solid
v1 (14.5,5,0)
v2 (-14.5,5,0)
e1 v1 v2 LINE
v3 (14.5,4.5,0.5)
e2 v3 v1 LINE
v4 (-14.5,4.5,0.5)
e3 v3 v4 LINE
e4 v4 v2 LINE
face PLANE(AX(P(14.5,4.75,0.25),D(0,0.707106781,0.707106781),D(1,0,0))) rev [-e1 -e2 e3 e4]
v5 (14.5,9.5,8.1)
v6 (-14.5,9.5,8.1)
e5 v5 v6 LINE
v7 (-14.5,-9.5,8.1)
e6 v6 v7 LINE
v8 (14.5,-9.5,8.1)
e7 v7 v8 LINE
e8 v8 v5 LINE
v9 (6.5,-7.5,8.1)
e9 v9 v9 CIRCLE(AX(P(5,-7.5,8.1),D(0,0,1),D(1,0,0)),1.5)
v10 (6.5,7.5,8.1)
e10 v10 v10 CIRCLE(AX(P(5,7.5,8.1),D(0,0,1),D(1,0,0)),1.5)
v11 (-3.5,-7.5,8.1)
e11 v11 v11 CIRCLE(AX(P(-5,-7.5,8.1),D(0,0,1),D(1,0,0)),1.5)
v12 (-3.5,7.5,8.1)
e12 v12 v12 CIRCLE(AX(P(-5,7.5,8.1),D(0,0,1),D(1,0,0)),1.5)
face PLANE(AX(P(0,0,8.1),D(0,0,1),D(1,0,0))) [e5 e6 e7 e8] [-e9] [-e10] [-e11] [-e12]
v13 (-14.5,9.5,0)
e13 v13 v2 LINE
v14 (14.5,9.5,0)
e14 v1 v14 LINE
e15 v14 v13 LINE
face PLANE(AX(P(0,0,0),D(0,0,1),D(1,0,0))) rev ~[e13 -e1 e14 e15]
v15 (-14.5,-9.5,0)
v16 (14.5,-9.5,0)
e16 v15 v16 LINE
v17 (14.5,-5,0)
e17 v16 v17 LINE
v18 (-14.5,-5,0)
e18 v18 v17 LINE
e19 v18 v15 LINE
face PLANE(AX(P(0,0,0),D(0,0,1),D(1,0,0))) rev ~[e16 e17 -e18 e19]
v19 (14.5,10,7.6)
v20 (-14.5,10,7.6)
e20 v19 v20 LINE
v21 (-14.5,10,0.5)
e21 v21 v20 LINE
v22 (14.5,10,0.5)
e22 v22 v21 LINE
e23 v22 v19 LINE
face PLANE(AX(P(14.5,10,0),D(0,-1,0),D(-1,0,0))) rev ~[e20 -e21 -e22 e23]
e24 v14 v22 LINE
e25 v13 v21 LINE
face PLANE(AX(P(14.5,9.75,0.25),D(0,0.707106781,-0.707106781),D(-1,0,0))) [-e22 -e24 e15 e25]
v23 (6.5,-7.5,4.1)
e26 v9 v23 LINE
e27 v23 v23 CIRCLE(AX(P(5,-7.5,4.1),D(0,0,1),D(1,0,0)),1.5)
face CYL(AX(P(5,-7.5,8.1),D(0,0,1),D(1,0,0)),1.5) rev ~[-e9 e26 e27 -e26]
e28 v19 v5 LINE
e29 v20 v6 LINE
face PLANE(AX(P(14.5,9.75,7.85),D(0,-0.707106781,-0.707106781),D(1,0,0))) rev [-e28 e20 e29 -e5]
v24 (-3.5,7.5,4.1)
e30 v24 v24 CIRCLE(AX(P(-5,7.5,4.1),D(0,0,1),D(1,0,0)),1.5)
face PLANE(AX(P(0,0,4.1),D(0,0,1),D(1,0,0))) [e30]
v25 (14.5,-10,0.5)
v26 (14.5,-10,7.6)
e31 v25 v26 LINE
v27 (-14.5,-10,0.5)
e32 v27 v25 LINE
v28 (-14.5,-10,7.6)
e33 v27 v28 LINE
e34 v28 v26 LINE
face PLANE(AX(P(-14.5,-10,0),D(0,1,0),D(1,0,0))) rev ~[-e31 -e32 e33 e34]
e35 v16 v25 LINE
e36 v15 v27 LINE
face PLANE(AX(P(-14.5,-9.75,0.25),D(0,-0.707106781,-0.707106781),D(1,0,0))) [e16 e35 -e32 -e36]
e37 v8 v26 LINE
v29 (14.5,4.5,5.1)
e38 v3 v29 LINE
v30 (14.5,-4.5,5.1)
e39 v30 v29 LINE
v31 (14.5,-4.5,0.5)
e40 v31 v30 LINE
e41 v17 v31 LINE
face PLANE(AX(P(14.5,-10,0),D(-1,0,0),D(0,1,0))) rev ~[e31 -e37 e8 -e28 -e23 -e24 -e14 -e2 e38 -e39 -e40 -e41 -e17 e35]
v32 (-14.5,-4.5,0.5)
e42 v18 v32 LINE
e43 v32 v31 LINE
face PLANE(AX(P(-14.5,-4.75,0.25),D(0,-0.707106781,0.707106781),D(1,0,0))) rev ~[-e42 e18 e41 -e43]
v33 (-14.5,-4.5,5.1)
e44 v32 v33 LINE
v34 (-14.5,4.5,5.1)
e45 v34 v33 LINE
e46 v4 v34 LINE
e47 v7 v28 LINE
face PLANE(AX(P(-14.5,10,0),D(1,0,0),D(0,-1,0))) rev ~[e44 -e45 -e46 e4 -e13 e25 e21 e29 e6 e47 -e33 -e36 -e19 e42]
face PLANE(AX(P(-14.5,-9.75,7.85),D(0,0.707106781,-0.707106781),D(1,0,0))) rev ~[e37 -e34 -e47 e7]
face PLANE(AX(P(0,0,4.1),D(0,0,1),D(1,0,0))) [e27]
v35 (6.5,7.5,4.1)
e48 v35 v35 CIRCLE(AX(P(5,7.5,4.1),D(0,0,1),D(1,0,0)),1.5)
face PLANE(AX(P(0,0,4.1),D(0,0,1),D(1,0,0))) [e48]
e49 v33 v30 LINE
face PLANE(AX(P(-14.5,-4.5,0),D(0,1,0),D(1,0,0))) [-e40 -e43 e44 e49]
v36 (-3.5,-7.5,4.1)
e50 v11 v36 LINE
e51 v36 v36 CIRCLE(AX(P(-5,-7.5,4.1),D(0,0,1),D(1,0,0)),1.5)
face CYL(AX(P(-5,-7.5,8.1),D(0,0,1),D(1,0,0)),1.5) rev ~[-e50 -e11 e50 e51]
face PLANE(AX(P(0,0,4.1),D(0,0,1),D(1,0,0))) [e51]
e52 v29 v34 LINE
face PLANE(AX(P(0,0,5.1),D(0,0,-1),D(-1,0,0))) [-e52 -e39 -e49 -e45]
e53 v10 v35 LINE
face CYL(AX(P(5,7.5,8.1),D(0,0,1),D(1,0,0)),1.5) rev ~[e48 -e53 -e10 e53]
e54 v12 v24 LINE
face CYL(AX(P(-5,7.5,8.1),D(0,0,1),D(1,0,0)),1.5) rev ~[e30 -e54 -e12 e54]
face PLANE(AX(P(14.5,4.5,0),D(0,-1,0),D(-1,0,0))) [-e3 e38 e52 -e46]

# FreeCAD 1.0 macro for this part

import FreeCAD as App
import Part
import Sketcher

V = App.Vector


def edges_at(feature, points):
    """Names of the edges that pass closest to the given points."""
    edges = feature.Shape.Edges
    near = lambda p: min(range(len(edges)), key=lambda i: edges[i].distToShape(Part.Vertex(*p))[0])
    return sorted({f"Edge{near(p) + 1}" for p in points})


def add_polygon(sketch, points):
    """Adds a closed chain of lines whose ends are joined by coincident constraints."""
    first, n = sketch.GeometryCount, len(points)
    for a, b in zip(points, points[1:] + points[:1]):
        sketch.addGeometry(Part.LineSegment(App.Vector(*a, 0), App.Vector(*b, 0)), False)
    for i in range(n):
        sketch.addConstraint(Sketcher.Constraint("Coincident", first + i, 2, first + (i + 1) % n, 1))

doc = App.newDocument("Part")
body = doc.addObject("PartDesign::Body", "Body")

# Sketch on XY plane
sketch1 = body.newObject("Sketcher::SketchObject", "Sketch")
sketch1.AttachmentSupport = (doc.getObject("XY_Plane"), [""])
sketch1.MapMode = "FlatFace"
add_polygon(sketch1, [(14, -10), (14, 10), (-14, 10), (-14, -10)])  # lines 0-3
sketch1.addConstraint([
    Sketcher.Constraint("Vertical", 0),
    Sketcher.Constraint("Horizontal", 1),
    Sketcher.Constraint("Vertical", 2),
    Sketcher.Constraint("Horizontal", 3),
    Sketcher.Constraint("Symmetric", 0, 2, 2, 2, -1, 1),
    Sketcher.Constraint("DistanceX", 1, 2, 1, 1, 29.0),
    Sketcher.Constraint("DistanceY", 0, 1, 0, 2, 20.0),
])
pad1 = body.newObject("PartDesign::Pad", "Pad")
pad1.Profile = sketch1
pad1.Length = 8.1

# Sketch on XY plane
sketch2 = body.newObject("Sketcher::SketchObject", "Sketch001")
sketch2.AttachmentSupport = (doc.getObject("XY_Plane"), [""])
sketch2.MapMode = "FlatFace"
sketch2.AttachmentOffset = App.Placement(V(0, 0, 8.1), App.Rotation())
sketch2.addGeometry([
    Part.Circle(V(-5, 7.5, 0), V(0, 0, 1), 1.5),
    Part.Circle(V(5, 7.5, 0), V(0, 0, 1), 1.5),
    Part.Circle(V(5, -7.5, 0), V(0, 0, 1), 1.5),
    Part.Circle(V(-5, -7.5, 0), V(0, 0, 1), 1.5),
], False)
sketch2.addConstraint([
    Sketcher.Constraint("Equal", 0, 1),
    Sketcher.Constraint("Equal", 1, 2),
    Sketcher.Constraint("Equal", 2, 3),
    Sketcher.Constraint("Symmetric", 0, 3, 2, 3, -1, 1),
    Sketcher.Constraint("Symmetric", 1, 3, 3, 3, -1, 1),
    Sketcher.Constraint("Symmetric", 0, 3, 1, 3, -2),
    Sketcher.Constraint("Diameter", 0, 3.0),
    Sketcher.Constraint("DistanceX", 0, 3, -1, 1, 5.0),
    Sketcher.Constraint("DistanceY", 2, 3, 1, 3, 15.0),
])
pocket1 = body.newObject("PartDesign::Pocket", "Pocket")
pocket1.Profile = sketch2
pocket1.Length = 4

# Sketch on XY plane
sketch3 = body.newObject("Sketcher::SketchObject", "Sketch002")
sketch3.AttachmentSupport = (doc.getObject("XY_Plane"), [""])
sketch3.MapMode = "FlatFace"
add_polygon(sketch3, [(14, 4), (14, -4), (-14, -4), (-14, 4)])  # lines 0-3
sketch3.addConstraint([
    Sketcher.Constraint("Vertical", 0),
    Sketcher.Constraint("Horizontal", 1),
    Sketcher.Constraint("Vertical", 2),
    Sketcher.Constraint("Horizontal", 3),
    Sketcher.Constraint("Symmetric", 0, 2, 2, 2, -1, 1),
    Sketcher.Constraint("DistanceY", 0, 2, 0, 1, 9.0),
    Sketcher.Constraint("DistanceX", 1, 2, 1, 1, 29.0),
])
pocket2 = body.newObject("PartDesign::Pocket", "Pocket001")
pocket2.Profile = sketch3
pocket2.Length = 5.1
pocket2.Reversed = True
doc.recompute()

chamfer = body.newObject("PartDesign::Chamfer", "Chamfer")
chamfer.Base = (pocket2, edges_at(pocket2, [
    (0, 10, 8.1),
    (0, -10, 8.1),
    (0, -10, 0),
    (0, 10, 0),
    (0, -4.5, 0),
    (0, 4.5, 0),
]))
chamfer.Size = 0.5

doc.recompute()
